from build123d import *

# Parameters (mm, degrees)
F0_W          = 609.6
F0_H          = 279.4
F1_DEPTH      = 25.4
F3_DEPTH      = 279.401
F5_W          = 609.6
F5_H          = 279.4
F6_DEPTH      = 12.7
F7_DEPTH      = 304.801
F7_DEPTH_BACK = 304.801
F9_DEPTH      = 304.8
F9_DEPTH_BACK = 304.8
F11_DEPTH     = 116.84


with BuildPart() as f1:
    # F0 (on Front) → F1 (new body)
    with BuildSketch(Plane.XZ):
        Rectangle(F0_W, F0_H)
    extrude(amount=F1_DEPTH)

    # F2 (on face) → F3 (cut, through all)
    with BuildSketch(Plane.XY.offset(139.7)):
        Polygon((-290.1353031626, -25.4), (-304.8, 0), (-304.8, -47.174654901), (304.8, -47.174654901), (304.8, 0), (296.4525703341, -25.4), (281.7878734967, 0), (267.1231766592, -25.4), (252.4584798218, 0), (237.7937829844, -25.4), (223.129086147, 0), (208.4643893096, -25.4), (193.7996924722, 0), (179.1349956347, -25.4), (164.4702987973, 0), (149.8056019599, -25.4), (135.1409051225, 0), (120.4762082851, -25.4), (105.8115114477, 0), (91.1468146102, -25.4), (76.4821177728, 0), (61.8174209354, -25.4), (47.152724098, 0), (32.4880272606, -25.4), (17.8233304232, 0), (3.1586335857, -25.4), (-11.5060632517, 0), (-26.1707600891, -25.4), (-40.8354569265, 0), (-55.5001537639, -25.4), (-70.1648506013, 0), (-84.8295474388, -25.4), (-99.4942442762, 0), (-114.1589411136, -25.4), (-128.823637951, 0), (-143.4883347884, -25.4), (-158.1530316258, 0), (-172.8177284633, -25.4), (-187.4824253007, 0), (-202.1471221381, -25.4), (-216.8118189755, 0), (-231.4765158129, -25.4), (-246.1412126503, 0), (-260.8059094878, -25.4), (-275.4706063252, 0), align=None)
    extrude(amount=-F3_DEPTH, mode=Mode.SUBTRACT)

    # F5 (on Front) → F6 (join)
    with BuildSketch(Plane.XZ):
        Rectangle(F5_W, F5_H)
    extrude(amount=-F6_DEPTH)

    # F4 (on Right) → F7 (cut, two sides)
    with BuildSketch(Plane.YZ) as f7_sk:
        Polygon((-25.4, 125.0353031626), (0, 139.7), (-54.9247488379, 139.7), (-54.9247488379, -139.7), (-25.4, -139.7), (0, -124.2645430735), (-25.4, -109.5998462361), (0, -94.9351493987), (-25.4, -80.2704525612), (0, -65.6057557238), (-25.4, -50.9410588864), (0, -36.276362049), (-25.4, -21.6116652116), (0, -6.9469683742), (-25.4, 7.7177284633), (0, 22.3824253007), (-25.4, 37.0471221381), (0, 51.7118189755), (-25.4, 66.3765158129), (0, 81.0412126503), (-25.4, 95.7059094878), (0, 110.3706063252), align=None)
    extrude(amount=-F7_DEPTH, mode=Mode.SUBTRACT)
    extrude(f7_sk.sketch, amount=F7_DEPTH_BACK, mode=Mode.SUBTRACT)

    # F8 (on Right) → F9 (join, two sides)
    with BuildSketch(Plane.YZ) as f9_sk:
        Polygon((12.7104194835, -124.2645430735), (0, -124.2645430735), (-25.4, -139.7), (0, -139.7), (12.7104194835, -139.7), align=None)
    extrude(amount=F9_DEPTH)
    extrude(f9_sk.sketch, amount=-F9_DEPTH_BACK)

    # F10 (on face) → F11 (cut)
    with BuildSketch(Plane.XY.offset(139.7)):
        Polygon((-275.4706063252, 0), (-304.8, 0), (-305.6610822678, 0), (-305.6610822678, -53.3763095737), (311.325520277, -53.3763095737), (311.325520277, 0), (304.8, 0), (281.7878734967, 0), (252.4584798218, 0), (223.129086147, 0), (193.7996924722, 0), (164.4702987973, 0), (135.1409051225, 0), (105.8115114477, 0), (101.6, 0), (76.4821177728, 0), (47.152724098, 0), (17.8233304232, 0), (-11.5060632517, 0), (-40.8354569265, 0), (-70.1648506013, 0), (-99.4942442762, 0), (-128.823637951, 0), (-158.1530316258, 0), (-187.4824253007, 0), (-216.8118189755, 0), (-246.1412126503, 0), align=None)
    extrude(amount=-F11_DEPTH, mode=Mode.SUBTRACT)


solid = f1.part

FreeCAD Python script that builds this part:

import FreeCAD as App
import Part
import Sketcher
from FreeCAD import Vector
Q = App.Units.Quantity


def add_polygon(sketch, points):
    """Adds a closed chain of lines whose ends are joined by coincident constraints."""
    first, n = sketch.GeometryCount, len(points)
    for a, b in zip(points, points[1:] + points[:1]):
        sketch.addGeometry(Part.LineSegment(App.Vector(*a, 0), App.Vector(*b, 0)), False)
    for i in range(n):
        sketch.addConstraint(Sketcher.Constraint("Coincident", first + i, 2, first + (i + 1) % n, 1))

doc = App.newDocument("Part")
body = doc.addObject("PartDesign::Body", "Body")
body.AllowCompound = True

# Sketch on XZ plane
sketch1 = body.newObject("Sketcher::SketchObject", "Sketch")
sketch1.AttachmentSupport = (doc.getObject("XZ_Plane"), [""])
sketch1.MapMode = "FlatFace"
add_polygon(sketch1, [(-305, 140), (-305, -140), (305, -140), (305, 140)])  # lines 0-3
sketch1.addConstraint(Sketcher.Constraint("Vertical", 0))
sketch1.addConstraint(Sketcher.Constraint("Horizontal", 1))
sketch1.addConstraint(Sketcher.Constraint("Vertical", 2))
sketch1.addConstraint(Sketcher.Constraint("Horizontal", 3))
sketch1.addConstraint(Sketcher.Constraint("Symmetric", 0, 2, 2, 2, -1, 1))
sketch1.addConstraint(Sketcher.Constraint("DistanceX", 1, 1, 1, 2, Q("24 in")))
sketch1.addConstraint(Sketcher.Constraint("DistanceY", 0, 2, 0, 1, Q("11 in")))
pad1 = body.newObject("PartDesign::Pad", "Pad")
pad1.Profile = sketch1
pad1.Length = Q("1 in")

# Sketch on XY plane
sketch2 = body.newObject("Sketcher::SketchObject", "Sketch001")
sketch2.AttachmentSupport = (doc.getObject("XY_Plane"), [""])
sketch2.MapMode = "FlatFace"
sketch2.AttachmentOffset = App.Placement(Vector(0, 0, 5.5 * 25.4), App.Rotation())
add_polygon(sketch2, [(-290, -25), (-305, 0), (-305, -47), (305, -47), (305, 0), (296, -25), (282, 0), (267, -25), (252, 0), (238, -25), (223, 0), (208, -25), (194, 0), (179, -25), (164, 0), (150, -25), (135, 0), (120, -25), (106, 0), (91, -25), (76, 0), (62, -25), (47, 0), (32, -25), (18, 0), (3, -25), (-12, 0), (-26, -25), (-41, 0), (-56, -25), (-70, 0), (-85, -25), (-99, 0), (-114, -25), (-129, 0), (-143, -25), (-158, 0), (-173, -25), (-187, 0), (-202, -25), (-217, 0), (-231, -25), (-246, 0), (-261, -25), (-275, 0)])  # lines 0-44
sketch2.addConstraint(Sketcher.Constraint("Vertical", 1))
sketch2.addConstraint(Sketcher.Constraint("Horizontal", 2))
sketch2.addConstraint(Sketcher.Constraint("Vertical", 3))
sketch2.addConstraint(Sketcher.Constraint("Symmetric", 0, 2, 3, 2, -1, 1))
sketch2.addConstraint(Sketcher.Constraint("PointOnObject", 0, 2, -1))
sketch2.addConstraint(Sketcher.Constraint("PointOnObject", 5, 2, -1))
sketch2.addConstraint(Sketcher.Constraint("PointOnObject", 7, 2, -1))
sketch2.addConstraint(Sketcher.Constraint("PointOnObject", 9, 2, -1))
sketch2.addConstraint(Sketcher.Constraint("PointOnObject", 11, 2, -1))
sketch2.addConstraint(Sketcher.Constraint("PointOnObject", 13, 2, -1))
sketch2.addConstraint(Sketcher.Constraint("PointOnObject", 15, 2, -1))
sketch2.addConstraint(Sketcher.Constraint("PointOnObject", 17, 2, -1))
sketch2.addConstraint(Sketcher.Constraint("PointOnObject", 19, 2, -1))
sketch2.addConstraint(Sketcher.Constraint("PointOnObject", 21, 2, -1))
sketch2.addConstraint(Sketcher.Constraint("PointOnObject", 23, 2, -1))
sketch2.addConstraint(Sketcher.Constraint("PointOnObject", 25, 2, -1))
sketch2.addConstraint(Sketcher.Constraint("PointOnObject", 27, 2, -1))
sketch2.addConstraint(Sketcher.Constraint("PointOnObject", 29, 2, -1))
sketch2.addConstraint(Sketcher.Constraint("PointOnObject", 31, 2, -1))
sketch2.addConstraint(Sketcher.Constraint("PointOnObject", 33, 2, -1))
sketch2.addConstraint(Sketcher.Constraint("PointOnObject", 35, 2, -1))
sketch2.addConstraint(Sketcher.Constraint("PointOnObject", 37, 2, -1))
sketch2.addConstraint(Sketcher.Constraint("PointOnObject", 39, 2, -1))
sketch2.addConstraint(Sketcher.Constraint("PointOnObject", 41, 2, -1))
sketch2.addConstraint(Sketcher.Constraint("PointOnObject", 43, 2, -1))
sketch2.addConstraint(Sketcher.Constraint("Parallel", 0, 5))
sketch2.addConstraint(Sketcher.Constraint("Parallel", 5, 7))
sketch2.addConstraint(Sketcher.Constraint("Parallel", 6, 8))
sketch2.addConstraint(Sketcher.Constraint("Parallel", 7, 9))
sketch2.addConstraint(Sketcher.Constraint("Parallel", 8, 10))
sketch2.addConstraint(Sketcher.Constraint("Parallel", 9, 11))
sketch2.addConstraint(Sketcher.Constraint("Parallel", 10, 12))
sketch2.addConstraint(Sketcher.Constraint("Parallel", 11, 13))
sketch2.addConstraint(Sketcher.Constraint("Parallel", 12, 14))
sketch2.addConstraint(Sketcher.Constraint("Parallel", 13, 15))
sketch2.addConstraint(Sketcher.Constraint("Parallel", 14, 16))
sketch2.addConstraint(Sketcher.Constraint("Parallel", 15, 17))
sketch2.addConstraint(Sketcher.Constraint("Parallel", 16, 18))
sketch2.addConstraint(Sketcher.Constraint("Parallel", 17, 19))
sketch2.addConstraint(Sketcher.Constraint("Parallel", 18, 20))
sketch2.addConstraint(Sketcher.Constraint("Parallel", 19, 21))
sketch2.addConstraint(Sketcher.Constraint("Parallel", 20, 22))
sketch2.addConstraint(Sketcher.Constraint("Parallel", 21, 23))
sketch2.addConstraint(Sketcher.Constraint("Parallel", 22, 24))
sketch2.addConstraint(Sketcher.Constraint("Parallel", 23, 25))
sketch2.addConstraint(Sketcher.Constraint("Parallel", 24, 26))
sketch2.addConstraint(Sketcher.Constraint("Parallel", 25, 27))
sketch2.addConstraint(Sketcher.Constraint("Parallel", 26, 28))
sketch2.addConstraint(Sketcher.Constraint("Parallel", 27, 29))
sketch2.addConstraint(Sketcher.Constraint("Parallel", 28, 30))
sketch2.addConstraint(Sketcher.Constraint("Parallel", 29, 31))
sketch2.addConstraint(Sketcher.Constraint("Parallel", 30, 32))
sketch2.addConstraint(Sketcher.Constraint("Parallel", 31, 33))
sketch2.addConstraint(Sketcher.Constraint("Parallel", 32, 34))
sketch2.addConstraint(Sketcher.Constraint("Parallel", 33, 35))
sketch2.addConstraint(Sketcher.Constraint("Parallel", 34, 36))
sketch2.addConstraint(Sketcher.Constraint("Parallel", 35, 37))
sketch2.addConstraint(Sketcher.Constraint("Parallel", 36, 38))
sketch2.addConstraint(Sketcher.Constraint("Parallel", 37, 39))
sketch2.addConstraint(Sketcher.Constraint("Parallel", 38, 40))
sketch2.addConstraint(Sketcher.Constraint("Parallel", 39, 41))
sketch2.addConstraint(Sketcher.Constraint("Parallel", 40, 42))
sketch2.addConstraint(Sketcher.Constraint("Parallel", 41, 43))
sketch2.addConstraint(Sketcher.Constraint("Parallel", 42, 44))
sketch2.addConstraint(Sketcher.Constraint("Horizontal", 4, 2, 6, 2))
sketch2.addConstraint(Sketcher.Constraint("Horizontal", 6, 2, 8, 2))
sketch2.addConstraint(Sketcher.Constraint("Horizontal", 8, 2, 10, 2))
sketch2.addConstraint(Sketcher.Constraint("Horizontal", 10, 2, 12, 2))
sketch2.addConstraint(Sketcher.Constraint("Horizontal", 12, 2, 14, 2))
sketch2.addConstraint(Sketcher.Constraint("Horizontal", 14, 2, 16, 2))
sketch2.addConstraint(Sketcher.Constraint("Horizontal", 16, 2, 18, 2))
sketch2.addConstraint(Sketcher.Constraint("Horizontal", 18, 2, 20, 2))
sketch2.addConstraint(Sketcher.Constraint("Horizontal", 20, 2, 22, 2))
sketch2.addConstraint(Sketcher.Constraint("Horizontal", 22, 2, 24, 2))
sketch2.addConstraint(Sketcher.Constraint("Horizontal", 24, 2, 26, 2))
sketch2.addConstraint(Sketcher.Constraint("Horizontal", 26, 2, 28, 2))
sketch2.addConstraint(Sketcher.Constraint("Horizontal", 28, 2, 30, 2))
sketch2.addConstraint(Sketcher.Constraint("Horizontal", 30, 2, 32, 2))
sketch2.addConstraint(Sketcher.Constraint("Horizontal", 32, 2, 34, 2))
sketch2.addConstraint(Sketcher.Constraint("Horizontal", 34, 2, 36, 2))
sketch2.addConstraint(Sketcher.Constraint("Horizontal", 36, 2, 38, 2))
sketch2.addConstraint(Sketcher.Constraint("Horizontal", 38, 2, 40, 2))
sketch2.addConstraint(Sketcher.Constraint("Horizontal", 40, 2, 42, 2))
sketch2.addConstraint(Sketcher.Constraint("Horizontal", 42, 2, 44, 2))
sketch2.addConstraint(Sketcher.Constraint("Equal", 5, 6))
sketch2.addConstraint(Sketcher.Constraint("DistanceX", 2, 1, 2, 2, Q("24 in")))
sketch2.addConstraint(Sketcher.Constraint("DistanceY", 4, 2, -1, 1, Q("1 in")))
sketch2.addConstraint(Sketcher.Constraint("Angle", 0, Q("120 deg")))
sketch2.addConstraint(Sketcher.Constraint("DistanceY", 1, 2, 1, 1, Q("47.174655 mm")))
pocket1 = body.newObject("PartDesign::Pocket", "Pocket")
pocket1.Profile = sketch2
pocket1.Type = "ThroughAll"

# Sketch on XZ plane
sketch3 = body.newObject("Sketcher::SketchObject", "Sketch002")
sketch3.AttachmentSupport = (doc.getObject("XZ_Plane"), [""])
sketch3.MapMode = "FlatFace"
add_polygon(sketch3, [(-305, 140), (-305, -140), (305, -140), (305, 140)])  # lines 0-3
sketch3.addConstraint(Sketcher.Constraint("Vertical", 0))
sketch3.addConstraint(Sketcher.Constraint("Horizontal", 1))
sketch3.addConstraint(Sketcher.Constraint("Vertical", 2))
sketch3.addConstraint(Sketcher.Constraint("Horizontal", 3))
sketch3.addConstraint(Sketcher.Constraint("Symmetric", 0, 2, 2, 2, -1, 1))
sketch3.addConstraint(Sketcher.Constraint("DistanceX", 1, 1, 1, 2, Q("24 in")))
sketch3.addConstraint(Sketcher.Constraint("DistanceY", 0, 2, 0, 1, Q("11 in")))
pad2 = body.newObject("PartDesign::Pad", "Pad001")
pad2.Profile = sketch3
pad2.Length = Q("0.5 in")
pad2.Reversed = True

# Sketch on YZ plane
sketch4 = body.newObject("Sketcher::SketchObject", "Sketch003")
sketch4.AttachmentSupport = (doc.getObject("YZ_Plane"), [""])
sketch4.MapMode = "FlatFace"
add_polygon(sketch4, [(-25, 125), (0, 140), (-55, 140), (-55, -140), (-25, -140), (0, -124), (-25, -110), (0, -95), (-25, -80), (0, -66), (-25, -51), (0, -36), (-25, -22), (0, -7), (-25, 8), (0, 22), (-25, 37), (0, 52), (-25, 66), (0, 81), (-25, 96), (0, 110)])  # lines 0-21
sketch4.addConstraint(Sketcher.Constraint("Horizontal", 1))
sketch4.addConstraint(Sketcher.Constraint("Vertical", 2))
sketch4.addConstraint(Sketcher.Constraint("Horizontal", 3))
sketch4.addConstraint(Sketcher.Constraint("PointOnObject", 0, 2, -2))
sketch4.addConstraint(Sketcher.Constraint("PointOnObject", 4, 2, -2))
sketch4.addConstraint(Sketcher.Constraint("PointOnObject", 6, 2, -2))
sketch4.addConstraint(Sketcher.Constraint("PointOnObject", 8, 2, -2))
sketch4.addConstraint(Sketcher.Constraint("PointOnObject", 10, 2, -2))
sketch4.addConstraint(Sketcher.Constraint("PointOnObject", 12, 2, -2))
sketch4.addConstraint(Sketcher.Constraint("PointOnObject", 14, 2, -2))
sketch4.addConstraint(Sketcher.Constraint("PointOnObject", 16, 2, -2))
sketch4.addConstraint(Sketcher.Constraint("PointOnObject", 18, 2, -2))
sketch4.addConstraint(Sketcher.Constraint("PointOnObject", 20, 2, -2))
sketch4.addConstraint(Sketcher.Constraint("Parallel", 0, 6))
sketch4.addConstraint(Sketcher.Constraint("Parallel", 5, 7))
sketch4.addConstraint(Sketcher.Constraint("Parallel", 6, 8))
sketch4.addConstraint(Sketcher.Constraint("Parallel", 7, 9))
sketch4.addConstraint(Sketcher.Constraint("Parallel", 8, 10))
sketch4.addConstraint(Sketcher.Constraint("Parallel", 9, 11))
sketch4.addConstraint(Sketcher.Constraint("Parallel", 10, 12))
sketch4.addConstraint(Sketcher.Constraint("Parallel", 11, 13))
sketch4.addConstraint(Sketcher.Constraint("Parallel", 12, 14))
sketch4.addConstraint(Sketcher.Constraint("Parallel", 13, 15))
sketch4.addConstraint(Sketcher.Constraint("Parallel", 14, 16))
sketch4.addConstraint(Sketcher.Constraint("Parallel", 15, 17))
sketch4.addConstraint(Sketcher.Constraint("Parallel", 16, 18))
sketch4.addConstraint(Sketcher.Constraint("Parallel", 17, 19))
sketch4.addConstraint(Sketcher.Constraint("Parallel", 18, 20))
sketch4.addConstraint(Sketcher.Constraint("Parallel", 19, 21))
sketch4.addConstraint(Sketcher.Constraint("Vertical", 3, 2, 5, 2))
sketch4.addConstraint(Sketcher.Constraint("Vertical", 5, 2, 7, 2))
sketch4.addConstraint(Sketcher.Constraint("Vertical", 7, 2, 9, 2))
sketch4.addConstraint(Sketcher.Constraint("Vertical", 9, 2, 11, 2))
sketch4.addConstraint(Sketcher.Constraint("Vertical", 11, 2, 13, 2))
sketch4.addConstraint(Sketcher.Constraint("Vertical", 13, 2, 15, 2))
sketch4.addConstraint(Sketcher.Constraint("Vertical", 15, 2, 17, 2))
sketch4.addConstraint(Sketcher.Constraint("Vertical", 17, 2, 19, 2))
sketch4.addConstraint(Sketcher.Constraint("Vertical", 19, 2, 21, 2))
sketch4.addConstraint(Sketcher.Constraint("Equal", 0, 5))
sketch4.addConstraint(Sketcher.Constraint("DistanceY", 2, 2, 2, 1, Q("11 in")))
sketch4.addConstraint(Sketcher.Constraint("DistanceX", 3, 2, -1, 1, Q("1 in")))
sketch4.addConstraint(Sketcher.Constraint("Angle", 0, Q("30 deg")))
sketch4.addConstraint(Sketcher.Constraint("DistanceY", -1, 1, 0, 2, Q("5.5 in")))
sketch4.addConstraint(Sketcher.Constraint("DistanceX", 1, 2, 1, 1, Q("54.924749 mm")))
pocket2 = body.newObject("PartDesign::Pocket", "Pocket001")
pocket2.Profile = sketch4
pocket2.Type = "ThroughAll"
pocket2.Midplane = True

# Sketch on YZ plane
sketch5 = body.newObject("Sketcher::SketchObject", "Sketch004")
sketch5.AttachmentSupport = (doc.getObject("YZ_Plane"), [""])
sketch5.MapMode = "FlatFace"
add_polygon(sketch5, [(13, -124), (0, -124), (-25, -140), (13, -140)])  # lines 0-3
sketch5.addConstraint(Sketcher.Constraint("Horizontal", 0))
sketch5.addConstraint(Sketcher.Constraint("Horizontal", 2))
sketch5.addConstraint(Sketcher.Constraint("Vertical", 3))
sketch5.addConstraint(Sketcher.Constraint("PointOnObject", 0, 2, -2))
sketch5.addConstraint(Sketcher.Constraint("DistanceX", 1, 2, -1, 1, Q("1 in")))
sketch5.addConstraint(Sketcher.Constraint("DistanceY", 1, 2, -1, 1, Q("5.5 in")))
sketch5.addConstraint(Sketcher.Constraint("DistanceX", 0, 2, 0, 1, Q("12.710419 mm")))
sketch5.addConstraint(Sketcher.Constraint("Distance", 1, Q("29.72227 mm")))
pad3 = body.newObject("PartDesign::Pad", "Pad002")
pad3.Profile = sketch5
pad3.Type = "TwoLengths"
pad3.Length = Q("12 in")
pad3.Length2 = Q("12 in")

# Sketch on XY plane
sketch6 = body.newObject("Sketcher::SketchObject", "Sketch005")
sketch6.AttachmentSupport = (doc.getObject("XY_Plane"), [""])
sketch6.MapMode = "FlatFace"
sketch6.AttachmentOffset = App.Placement(Vector(0, 0, 5.5 * 25.4), App.Rotation())
add_polygon(sketch6, [(-306, 0), (-306, -53), (311, -53), (311, 0)])  # lines 0-3
sketch6.addConstraint(Sketcher.Constraint("Vertical", 0))
sketch6.addConstraint(Sketcher.Constraint("Horizontal", 1))
sketch6.addConstraint(Sketcher.Constraint("Vertical", 2))
sketch6.addConstraint(Sketcher.Constraint("Horizontal", 3))
sketch6.addConstraint(Sketcher.Constraint("PointOnObject", 2, 2, -1))
sketch6.addConstraint(Sketcher.Constraint("DistanceY", 0, 2, 0, 1, Q("53.37631 mm")))
sketch6.addConstraint(Sketcher.Constraint("DistanceX", 1, 1, 1, 2, Q("616.986603 mm")))
sketch6.addConstraint(Sketcher.Constraint("DistanceX", -1, 1, 1, 2, Q("311.32552 mm")))
pocket3 = body.newObject("PartDesign::Pocket", "Pocket002")
pocket3.Profile = sketch6
pocket3.Length = Q("4.6 in")

doc.recompute()
